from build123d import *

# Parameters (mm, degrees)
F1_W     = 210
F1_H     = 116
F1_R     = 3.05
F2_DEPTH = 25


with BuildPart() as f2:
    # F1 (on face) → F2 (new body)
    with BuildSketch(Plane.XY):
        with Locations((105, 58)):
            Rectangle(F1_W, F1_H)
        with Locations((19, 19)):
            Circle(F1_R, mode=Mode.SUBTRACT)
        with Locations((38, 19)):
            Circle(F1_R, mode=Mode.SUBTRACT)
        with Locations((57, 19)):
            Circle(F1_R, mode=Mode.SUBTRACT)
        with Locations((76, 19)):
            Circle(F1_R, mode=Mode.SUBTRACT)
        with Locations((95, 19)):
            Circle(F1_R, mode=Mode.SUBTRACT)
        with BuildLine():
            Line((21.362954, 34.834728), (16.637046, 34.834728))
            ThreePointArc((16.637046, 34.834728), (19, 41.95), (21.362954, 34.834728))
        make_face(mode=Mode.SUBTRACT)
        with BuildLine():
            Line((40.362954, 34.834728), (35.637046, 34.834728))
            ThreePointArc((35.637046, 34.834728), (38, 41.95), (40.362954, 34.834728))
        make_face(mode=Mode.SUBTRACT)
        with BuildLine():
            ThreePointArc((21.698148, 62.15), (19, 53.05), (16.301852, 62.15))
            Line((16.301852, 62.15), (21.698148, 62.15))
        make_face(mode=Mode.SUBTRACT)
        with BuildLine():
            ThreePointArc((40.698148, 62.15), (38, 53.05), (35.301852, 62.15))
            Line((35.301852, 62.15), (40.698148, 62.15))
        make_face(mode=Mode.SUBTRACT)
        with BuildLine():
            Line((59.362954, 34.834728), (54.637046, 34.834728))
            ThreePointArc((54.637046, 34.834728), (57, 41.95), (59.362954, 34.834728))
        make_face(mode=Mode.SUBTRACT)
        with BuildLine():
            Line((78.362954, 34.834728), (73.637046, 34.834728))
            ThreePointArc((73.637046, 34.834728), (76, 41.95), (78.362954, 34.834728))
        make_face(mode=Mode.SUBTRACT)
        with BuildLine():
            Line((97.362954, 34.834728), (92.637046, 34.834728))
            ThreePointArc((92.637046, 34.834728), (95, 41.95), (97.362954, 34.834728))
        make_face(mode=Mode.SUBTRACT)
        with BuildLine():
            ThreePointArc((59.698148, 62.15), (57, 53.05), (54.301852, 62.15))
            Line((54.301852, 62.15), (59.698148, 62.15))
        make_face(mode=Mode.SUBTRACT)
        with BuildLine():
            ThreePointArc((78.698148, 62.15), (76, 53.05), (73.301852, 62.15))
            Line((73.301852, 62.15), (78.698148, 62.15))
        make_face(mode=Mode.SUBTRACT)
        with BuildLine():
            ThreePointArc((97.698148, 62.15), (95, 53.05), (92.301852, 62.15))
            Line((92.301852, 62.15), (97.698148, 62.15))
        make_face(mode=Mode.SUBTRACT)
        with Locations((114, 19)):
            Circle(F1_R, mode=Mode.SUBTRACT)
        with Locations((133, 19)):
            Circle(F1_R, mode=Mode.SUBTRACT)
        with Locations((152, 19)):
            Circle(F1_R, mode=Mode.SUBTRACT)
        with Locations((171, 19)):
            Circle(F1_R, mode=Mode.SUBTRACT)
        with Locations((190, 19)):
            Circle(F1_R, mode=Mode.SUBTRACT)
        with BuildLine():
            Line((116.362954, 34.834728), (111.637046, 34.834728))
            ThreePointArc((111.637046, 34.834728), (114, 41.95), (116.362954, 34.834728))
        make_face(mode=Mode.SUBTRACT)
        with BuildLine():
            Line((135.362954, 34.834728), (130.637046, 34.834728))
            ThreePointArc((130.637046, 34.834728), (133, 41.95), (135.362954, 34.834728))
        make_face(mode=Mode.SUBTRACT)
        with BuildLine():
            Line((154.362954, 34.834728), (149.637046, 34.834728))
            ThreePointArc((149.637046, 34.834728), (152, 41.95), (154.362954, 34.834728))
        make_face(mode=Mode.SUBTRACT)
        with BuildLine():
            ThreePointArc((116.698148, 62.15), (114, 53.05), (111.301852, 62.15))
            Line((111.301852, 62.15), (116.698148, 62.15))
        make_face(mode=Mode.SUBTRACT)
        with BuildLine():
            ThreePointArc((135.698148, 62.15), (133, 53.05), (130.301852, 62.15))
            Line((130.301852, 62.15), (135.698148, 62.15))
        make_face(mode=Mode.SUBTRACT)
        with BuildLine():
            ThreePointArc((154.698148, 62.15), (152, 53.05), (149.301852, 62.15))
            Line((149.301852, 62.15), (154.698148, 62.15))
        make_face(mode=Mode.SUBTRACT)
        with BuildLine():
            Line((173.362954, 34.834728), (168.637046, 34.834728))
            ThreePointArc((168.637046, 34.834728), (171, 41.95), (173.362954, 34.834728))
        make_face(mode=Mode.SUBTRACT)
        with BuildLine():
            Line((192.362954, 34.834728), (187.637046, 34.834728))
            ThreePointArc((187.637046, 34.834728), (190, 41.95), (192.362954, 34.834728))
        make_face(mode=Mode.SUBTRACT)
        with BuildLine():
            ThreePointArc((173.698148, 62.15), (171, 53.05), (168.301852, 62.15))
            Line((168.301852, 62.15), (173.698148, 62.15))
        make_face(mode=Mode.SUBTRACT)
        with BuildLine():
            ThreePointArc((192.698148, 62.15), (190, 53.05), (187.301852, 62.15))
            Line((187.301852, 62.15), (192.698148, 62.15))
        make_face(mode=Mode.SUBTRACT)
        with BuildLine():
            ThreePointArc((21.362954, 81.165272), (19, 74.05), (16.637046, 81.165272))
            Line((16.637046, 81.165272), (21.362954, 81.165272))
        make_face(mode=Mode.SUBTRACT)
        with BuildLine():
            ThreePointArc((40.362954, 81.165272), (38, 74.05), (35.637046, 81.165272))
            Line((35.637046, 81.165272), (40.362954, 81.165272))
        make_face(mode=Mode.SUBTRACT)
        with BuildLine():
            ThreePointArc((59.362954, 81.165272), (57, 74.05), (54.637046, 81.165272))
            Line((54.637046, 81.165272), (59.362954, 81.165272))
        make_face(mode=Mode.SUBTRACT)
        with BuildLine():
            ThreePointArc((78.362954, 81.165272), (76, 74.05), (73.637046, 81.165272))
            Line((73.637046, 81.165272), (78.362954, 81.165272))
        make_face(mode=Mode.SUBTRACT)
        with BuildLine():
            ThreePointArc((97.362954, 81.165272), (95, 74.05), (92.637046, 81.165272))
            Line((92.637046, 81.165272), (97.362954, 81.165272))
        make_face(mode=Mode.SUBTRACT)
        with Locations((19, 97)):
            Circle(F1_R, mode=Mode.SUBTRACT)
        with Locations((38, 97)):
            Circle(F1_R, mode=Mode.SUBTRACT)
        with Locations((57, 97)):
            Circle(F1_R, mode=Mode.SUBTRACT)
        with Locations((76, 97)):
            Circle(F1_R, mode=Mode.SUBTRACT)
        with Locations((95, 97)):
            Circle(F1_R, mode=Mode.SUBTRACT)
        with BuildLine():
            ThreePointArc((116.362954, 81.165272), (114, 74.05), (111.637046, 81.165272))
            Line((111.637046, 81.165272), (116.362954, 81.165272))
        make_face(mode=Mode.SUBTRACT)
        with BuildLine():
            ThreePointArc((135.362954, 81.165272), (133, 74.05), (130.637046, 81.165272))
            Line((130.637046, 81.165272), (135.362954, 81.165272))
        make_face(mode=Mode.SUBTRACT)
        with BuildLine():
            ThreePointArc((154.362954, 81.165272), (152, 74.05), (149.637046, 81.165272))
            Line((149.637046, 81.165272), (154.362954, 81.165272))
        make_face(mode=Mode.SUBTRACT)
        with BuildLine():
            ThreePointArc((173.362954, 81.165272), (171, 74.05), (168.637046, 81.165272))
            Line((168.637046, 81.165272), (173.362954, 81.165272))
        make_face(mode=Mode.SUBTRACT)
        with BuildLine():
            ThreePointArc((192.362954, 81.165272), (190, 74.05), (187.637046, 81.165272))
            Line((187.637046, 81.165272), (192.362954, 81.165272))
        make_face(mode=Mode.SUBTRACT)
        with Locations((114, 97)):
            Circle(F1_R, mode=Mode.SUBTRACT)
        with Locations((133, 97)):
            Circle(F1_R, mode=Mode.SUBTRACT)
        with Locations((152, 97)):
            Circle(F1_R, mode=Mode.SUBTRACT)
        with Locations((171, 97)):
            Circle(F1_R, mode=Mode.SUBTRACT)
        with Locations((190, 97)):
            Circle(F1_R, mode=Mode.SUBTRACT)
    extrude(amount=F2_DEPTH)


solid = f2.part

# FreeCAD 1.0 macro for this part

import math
import FreeCAD as App
import Part
import Sketcher
from FreeCAD import Vector

doc = App.newDocument("Part")
body = doc.addObject("PartDesign::Body", "Body")

sketch1 = body.newObject("Sketcher::SketchObject", "Sketch")
sketch1.AttachmentSupport = (doc.getObject("XY_Plane"), [""])
sketch1.MapMode = "FlatFace"
sketch1.addGeometry(Part.LineSegment(Vector(0, 116, 0), Vector(0, 0, 0)), False)
sketch1.addGeometry(Part.LineSegment(Vector(0, 0, 0), Vector(210, 0, 0)), False)
sketch1.addGeometry(Part.LineSegment(Vector(210, 0, 0), Vector(210, 116, 0)), False)
sketch1.addGeometry(Part.LineSegment(Vector(210, 116, 0), Vector(0, 116, 0)), False)
sketch1.addGeometry(Part.Circle(Vector(19, 19, 0), Vector(0, 0, 1), 3.05), False)
sketch1.addGeometry(Part.Circle(Vector(38, 19, 0), Vector(0, 0, 1), 3.05), False)
sketch1.addGeometry(Part.Circle(Vector(57, 19, 0), Vector(0, 0, 1), 3.05), False)
sketch1.addGeometry(Part.Circle(Vector(76, 19, 0), Vector(0, 0, 1), 3.05), False)
sketch1.addGeometry(Part.Circle(Vector(95, 19, 0), Vector(0, 0, 1), 3.05), False)
sketch1.addGeometry(Part.ArcOfCircle(Part.Circle(Vector(19, 38, 0), Vector(0, 0, 1), 3.95), math.radians(-53.25775), math.radians(233.25775)), False)
sketch1.addGeometry(Part.LineSegment(Vector(21.362954, 34.834728, 0), Vector(16.637046, 34.834728, 0)), False)
sketch1.addGeometry(Part.ArcOfCircle(Part.Circle(Vector(38, 38, 0), Vector(0, 0, 1), 3.95), math.radians(-53.25775), math.radians(233.25775)), False)
sketch1.addGeometry(Part.LineSegment(Vector(40.362954, 34.834728, 0), Vector(35.637046, 34.834728, 0)), False)
sketch1.addGeometry(Part.ArcOfCircle(Part.Circle(Vector(57, 38, 0), Vector(0, 0, 1), 3.95), math.radians(-53.25775), math.radians(233.25775)), False)
sketch1.addGeometry(Part.LineSegment(Vector(59.362954, 34.834728, 0), Vector(54.637046, 34.834728, 0)), False)
sketch1.addGeometry(Part.LineSegment(Vector(16.301852, 62.15, 0), Vector(21.698148, 62.15, 0)), False)
sketch1.addGeometry(Part.ArcOfCircle(Part.Circle(Vector(19, 58, 0), Vector(0, 0, 1), 4.95), math.radians(123.030157), math.radians(416.969843)), False)
sketch1.addGeometry(Part.LineSegment(Vector(35.301852, 62.15, 0), Vector(40.698148, 62.15, 0)), False)
sketch1.addGeometry(Part.ArcOfCircle(Part.Circle(Vector(38, 58, 0), Vector(0, 0, 1), 4.95), math.radians(123.030157), math.radians(416.969843)), False)
sketch1.addGeometry(Part.LineSegment(Vector(54.301852, 62.15, 0), Vector(59.698148, 62.15, 0)), False)
sketch1.addGeometry(Part.ArcOfCircle(Part.Circle(Vector(57, 58, 0), Vector(0, 0, 1), 4.95), math.radians(123.030157), math.radians(416.969843)), False)
sketch1.addGeometry(Part.ArcOfCircle(Part.Circle(Vector(76, 38, 0), Vector(0, 0, 1), 3.95), math.radians(-53.25775), math.radians(233.25775)), False)
sketch1.addGeometry(Part.LineSegment(Vector(78.362954, 34.834728, 0), Vector(73.637046, 34.834728, 0)), False)
sketch1.addGeometry(Part.ArcOfCircle(Part.Circle(Vector(95, 38, 0), Vector(0, 0, 1), 3.95), math.radians(-53.25775), math.radians(233.25775)), False)
sketch1.addGeometry(Part.LineSegment(Vector(97.362954, 34.834728, 0), Vector(92.637046, 34.834728, 0)), False)
sketch1.addGeometry(Part.LineSegment(Vector(73.301852, 62.15, 0), Vector(78.698148, 62.15, 0)), False)
sketch1.addGeometry(Part.ArcOfCircle(Part.Circle(Vector(76, 58, 0), Vector(0, 0, 1), 4.95), math.radians(123.030157), math.radians(416.969843)), False)
sketch1.addGeometry(Part.LineSegment(Vector(92.301852, 62.15, 0), Vector(97.698148, 62.15, 0)), False)
sketch1.addGeometry(Part.ArcOfCircle(Part.Circle(Vector(95, 58, 0), Vector(0, 0, 1), 4.95), math.radians(123.030157), math.radians(416.969843)), False)
sketch1.addGeometry(Part.Circle(Vector(114, 19, 0), Vector(0, 0, 1), 3.05), False)
sketch1.addGeometry(Part.Circle(Vector(133, 19, 0), Vector(0, 0, 1), 3.05), False)
sketch1.addGeometry(Part.Circle(Vector(152, 19, 0), Vector(0, 0, 1), 3.05), False)
sketch1.addGeometry(Part.Circle(Vector(171, 19, 0), Vector(0, 0, 1), 3.05), False)
sketch1.addGeometry(Part.Circle(Vector(190, 19, 0), Vector(0, 0, 1), 3.05), False)
sketch1.addGeometry(Part.ArcOfCircle(Part.Circle(Vector(114, 38, 0), Vector(0, 0, 1), 3.95), math.radians(-53.25775), math.radians(233.25775)), False)
sketch1.addGeometry(Part.LineSegment(Vector(116.362954, 34.834728, 0), Vector(111.637046, 34.834728, 0)), False)
sketch1.addGeometry(Part.ArcOfCircle(Part.Circle(Vector(133, 38, 0), Vector(0, 0, 1), 3.95), math.radians(-53.25775), math.radians(233.25775)), False)
sketch1.addGeometry(Part.LineSegment(Vector(135.362954, 34.834728, 0), Vector(130.637046, 34.834728, 0)), False)
sketch1.addGeometry(Part.LineSegment(Vector(111.301852, 62.15, 0), Vector(116.698148, 62.15, 0)), False)
sketch1.addGeometry(Part.ArcOfCircle(Part.Circle(Vector(114, 58, 0), Vector(0, 0, 1), 4.95), math.radians(123.030157), math.radians(416.969843)), False)
sketch1.addGeometry(Part.LineSegment(Vector(130.301852, 62.15, 0), Vector(135.698148, 62.15, 0)), False)
sketch1.addGeometry(Part.ArcOfCircle(Part.Circle(Vector(133, 58, 0), Vector(0, 0, 1), 4.95), math.radians(123.030157), math.radians(416.969843)), False)
sketch1.addGeometry(Part.ArcOfCircle(Part.Circle(Vector(152, 38, 0), Vector(0, 0, 1), 3.95), math.radians(-53.25775), math.radians(233.25775)), False)
sketch1.addGeometry(Part.LineSegment(Vector(154.362954, 34.834728, 0), Vector(149.637046, 34.834728, 0)), False)
sketch1.addGeometry(Part.ArcOfCircle(Part.Circle(Vector(171, 38, 0), Vector(0, 0, 1), 3.95), math.radians(-53.25775), math.radians(233.25775)), False)
sketch1.addGeometry(Part.LineSegment(Vector(173.362954, 34.834728, 0), Vector(168.637046, 34.834728, 0)), False)
sketch1.addGeometry(Part.ArcOfCircle(Part.Circle(Vector(190, 38, 0), Vector(0, 0, 1), 3.95), math.radians(-53.25775), math.radians(233.25775)), False)
sketch1.addGeometry(Part.LineSegment(Vector(192.362954, 34.834728, 0), Vector(187.637046, 34.834728, 0)), False)
sketch1.addGeometry(Part.LineSegment(Vector(149.301852, 62.15, 0), Vector(154.698148, 62.15, 0)), False)
sketch1.addGeometry(Part.ArcOfCircle(Part.Circle(Vector(152, 58, 0), Vector(0, 0, 1), 4.95), math.radians(123.030157), math.radians(416.969843)), False)
sketch1.addGeometry(Part.LineSegment(Vector(168.301852, 62.15, 0), Vector(173.698148, 62.15, 0)), False)
sketch1.addGeometry(Part.ArcOfCircle(Part.Circle(Vector(171, 58, 0), Vector(0, 0, 1), 4.95), math.radians(123.030157), math.radians(416.969843)), False)
sketch1.addGeometry(Part.LineSegment(Vector(187.301852, 62.15, 0), Vector(192.698148, 62.15, 0)), False)
sketch1.addGeometry(Part.ArcOfCircle(Part.Circle(Vector(190, 58, 0), Vector(0, 0, 1), 4.95), math.radians(123.030157), math.radians(416.969843)), False)
sketch1.addGeometry(Part.LineSegment(Vector(16.637046, 81.165272, 0), Vector(21.362954, 81.165272, 0)), False)
sketch1.addGeometry(Part.ArcOfCircle(Part.Circle(Vector(19, 78, 0), Vector(0, 0, 1), 3.95), math.radians(126.74225), math.radians(413.25775)), False)
sketch1.addGeometry(Part.LineSegment(Vector(35.637046, 81.165272, 0), Vector(40.362954, 81.165272, 0)), False)
sketch1.addGeometry(Part.ArcOfCircle(Part.Circle(Vector(38, 78, 0), Vector(0, 0, 1), 3.95), math.radians(126.74225), math.radians(413.25775)), False)
sketch1.addGeometry(Part.LineSegment(Vector(54.637046, 81.165272, 0), Vector(59.362954, 81.165272, 0)), False)
sketch1.addGeometry(Part.ArcOfCircle(Part.Circle(Vector(57, 78, 0), Vector(0, 0, 1), 3.95), math.radians(126.74225), math.radians(413.25775)), False)
sketch1.addGeometry(Part.LineSegment(Vector(73.637046, 81.165272, 0), Vector(78.362954, 81.165272, 0)), False)
sketch1.addGeometry(Part.ArcOfCircle(Part.Circle(Vector(76, 78, 0), Vector(0, 0, 1), 3.95), math.radians(126.74225), math.radians(413.25775)), False)
sketch1.addGeometry(Part.LineSegment(Vector(92.637046, 81.165272, 0), Vector(97.362954, 81.165272, 0)), False)
sketch1.addGeometry(Part.ArcOfCircle(Part.Circle(Vector(95, 78, 0), Vector(0, 0, 1), 3.95), math.radians(126.74225), math.radians(413.25775)), False)
sketch1.addGeometry(Part.Circle(Vector(19, 97, 0), Vector(0, 0, 1), 3.05), False)
sketch1.addGeometry(Part.Circle(Vector(38, 97, 0), Vector(0, 0, 1), 3.05), False)
sketch1.addGeometry(Part.Circle(Vector(57, 97, 0), Vector(0, 0, 1), 3.05), False)
sketch1.addGeometry(Part.Circle(Vector(76, 97, 0), Vector(0, 0, 1), 3.05), False)
sketch1.addGeometry(Part.Circle(Vector(95, 97, 0), Vector(0, 0, 1), 3.05), False)
sketch1.addGeometry(Part.LineSegment(Vector(111.637046, 81.165272, 0), Vector(116.362954, 81.165272, 0)), False)
sketch1.addGeometry(Part.ArcOfCircle(Part.Circle(Vector(114, 78, 0), Vector(0, 0, 1), 3.95), math.radians(126.74225), math.radians(413.25775)), False)
sketch1.addGeometry(Part.LineSegment(Vector(130.637046, 81.165272, 0), Vector(135.362954, 81.165272, 0)), False)
sketch1.addGeometry(Part.ArcOfCircle(Part.Circle(Vector(133, 78, 0), Vector(0, 0, 1), 3.95), math.radians(126.74225), math.radians(413.25775)), False)
sketch1.addGeometry(Part.LineSegment(Vector(149.637046, 81.165272, 0), Vector(154.362954, 81.165272, 0)), False)
sketch1.addGeometry(Part.ArcOfCircle(Part.Circle(Vector(152, 78, 0), Vector(0, 0, 1), 3.95), math.radians(126.74225), math.radians(413.25775)), False)
sketch1.addGeometry(Part.LineSegment(Vector(168.637046, 81.165272, 0), Vector(173.362954, 81.165272, 0)), False)
sketch1.addGeometry(Part.ArcOfCircle(Part.Circle(Vector(171, 78, 0), Vector(0, 0, 1), 3.95), math.radians(126.74225), math.radians(413.25775)), False)
sketch1.addGeometry(Part.LineSegment(Vector(187.637046, 81.165272, 0), Vector(192.362954, 81.165272, 0)), False)
sketch1.addGeometry(Part.ArcOfCircle(Part.Circle(Vector(190, 78, 0), Vector(0, 0, 1), 3.95), math.radians(126.74225), math.radians(413.25775)), False)
sketch1.addGeometry(Part.Circle(Vector(114, 97, 0), Vector(0, 0, 1), 3.05), False)
sketch1.addGeometry(Part.Circle(Vector(133, 97, 0), Vector(0, 0, 1), 3.05), False)
sketch1.addGeometry(Part.Circle(Vector(152, 97, 0), Vector(0, 0, 1), 3.05), False)
sketch1.addGeometry(Part.Circle(Vector(171, 97, 0), Vector(0, 0, 1), 3.05), False)
sketch1.addGeometry(Part.Circle(Vector(190, 97, 0), Vector(0, 0, 1), 3.05), False)
sketch1.addConstraint(Sketcher.Constraint("Coincident", 0, 2, 1, 1))
sketch1.addConstraint(Sketcher.Constraint("Coincident", 1, 2, 2, 1))
sketch1.addConstraint(Sketcher.Constraint("Coincident", 2, 2, 3, 1))
sketch1.addConstraint(Sketcher.Constraint("Coincident", 3, 2, 0, 1))
sketch1.addConstraint(Sketcher.Constraint("Coincident", 9, 1, 10, 1))
sketch1.addConstraint(Sketcher.Constraint("Coincident", 10, 2, 9, 2))
sketch1.addConstraint(Sketcher.Constraint("Coincident", 11, 1, 12, 1))
sketch1.addConstraint(Sketcher.Constraint("Coincident", 12, 2, 11, 2))
sketch1.addConstraint(Sketcher.Constraint("Coincident", 13, 1, 14, 1))
sketch1.addConstraint(Sketcher.Constraint("Coincident", 14, 2, 13, 2))
sketch1.addConstraint(Sketcher.Constraint("Coincident", 15, 1, 16, 1))
sketch1.addConstraint(Sketcher.Constraint("Coincident", 16, 2, 15, 2))
sketch1.addConstraint(Sketcher.Constraint("Coincident", 17, 1, 18, 1))
sketch1.addConstraint(Sketcher.Constraint("Coincident", 18, 2, 17, 2))
sketch1.addConstraint(Sketcher.Constraint("Coincident", 19, 1, 20, 1))
sketch1.addConstraint(Sketcher.Constraint("Coincident", 20, 2, 19, 2))
sketch1.addConstraint(Sketcher.Constraint("Coincident", 21, 1, 22, 1))
sketch1.addConstraint(Sketcher.Constraint("Coincident", 22, 2, 21, 2))
sketch1.addConstraint(Sketcher.Constraint("Coincident", 23, 1, 24, 1))
sketch1.addConstraint(Sketcher.Constraint("Coincident", 24, 2, 23, 2))
sketch1.addConstraint(Sketcher.Constraint("Coincident", 25, 1, 26, 1))
sketch1.addConstraint(Sketcher.Constraint("Coincident", 26, 2, 25, 2))
sketch1.addConstraint(Sketcher.Constraint("Coincident", 27, 1, 28, 1))
sketch1.addConstraint(Sketcher.Constraint("Coincident", 28, 2, 27, 2))
sketch1.addConstraint(Sketcher.Constraint("Coincident", 34, 1, 35, 1))
sketch1.addConstraint(Sketcher.Constraint("Coincident", 35, 2, 34, 2))
sketch1.addConstraint(Sketcher.Constraint("Coincident", 36, 1, 37, 1))
sketch1.addConstraint(Sketcher.Constraint("Coincident", 37, 2, 36, 2))
sketch1.addConstraint(Sketcher.Constraint("Coincident", 38, 1, 39, 1))
sketch1.addConstraint(Sketcher.Constraint("Coincident", 39, 2, 38, 2))
sketch1.addConstraint(Sketcher.Constraint("Coincident", 40, 1, 41, 1))
sketch1.addConstraint(Sketcher.Constraint("Coincident", 41, 2, 40, 2))
sketch1.addConstraint(Sketcher.Constraint("Coincident", 42, 1, 43, 1))
sketch1.addConstraint(Sketcher.Constraint("Coincident", 43, 2, 42, 2))
sketch1.addConstraint(Sketcher.Constraint("Coincident", 44, 1, 45, 1))
sketch1.addConstraint(Sketcher.Constraint("Coincident", 45, 2, 44, 2))
sketch1.addConstraint(Sketcher.Constraint("Coincident", 46, 1, 47, 1))
sketch1.addConstraint(Sketcher.Constraint("Coincident", 47, 2, 46, 2))
sketch1.addConstraint(Sketcher.Constraint("Coincident", 48, 1, 49, 1))
sketch1.addConstraint(Sketcher.Constraint("Coincident", 49, 2, 48, 2))
sketch1.addConstraint(Sketcher.Constraint("Coincident", 50, 1, 51, 1))
sketch1.addConstraint(Sketcher.Constraint("Coincident", 51, 2, 50, 2))
sketch1.addConstraint(Sketcher.Constraint("Coincident", 52, 1, 53, 1))
sketch1.addConstraint(Sketcher.Constraint("Coincident", 53, 2, 52, 2))
sketch1.addConstraint(Sketcher.Constraint("Coincident", 54, 1, 55, 1))
sketch1.addConstraint(Sketcher.Constraint("Coincident", 55, 2, 54, 2))
sketch1.addConstraint(Sketcher.Constraint("Coincident", 56, 1, 57, 1))
sketch1.addConstraint(Sketcher.Constraint("Coincident", 57, 2, 56, 2))
sketch1.addConstraint(Sketcher.Constraint("Coincident", 58, 1, 59, 1))
sketch1.addConstraint(Sketcher.Constraint("Coincident", 59, 2, 58, 2))
sketch1.addConstraint(Sketcher.Constraint("Coincident", 60, 1, 61, 1))
sketch1.addConstraint(Sketcher.Constraint("Coincident", 61, 2, 60, 2))
sketch1.addConstraint(Sketcher.Constraint("Coincident", 62, 1, 63, 1))
sketch1.addConstraint(Sketcher.Constraint("Coincident", 63, 2, 62, 2))
sketch1.addConstraint(Sketcher.Constraint("Coincident", 69, 1, 70, 1))
sketch1.addConstraint(Sketcher.Constraint("Coincident", 70, 2, 69, 2))
sketch1.addConstraint(Sketcher.Constraint("Coincident", 71, 1, 72, 1))
sketch1.addConstraint(Sketcher.Constraint("Coincident", 72, 2, 71, 2))
sketch1.addConstraint(Sketcher.Constraint("Coincident", 73, 1, 74, 1))
sketch1.addConstraint(Sketcher.Constraint("Coincident", 74, 2, 73, 2))
sketch1.addConstraint(Sketcher.Constraint("Coincident", 75, 1, 76, 1))
sketch1.addConstraint(Sketcher.Constraint("Coincident", 76, 2, 75, 2))
sketch1.addConstraint(Sketcher.Constraint("Coincident", 77, 1, 78, 1))
sketch1.addConstraint(Sketcher.Constraint("Coincident", 78, 2, 77, 2))
sketch1.addConstraint(Sketcher.Constraint("Vertical", 0))
sketch1.addConstraint(Sketcher.Constraint("Horizontal", 1))
sketch1.addConstraint(Sketcher.Constraint("Vertical", 2))
sketch1.addConstraint(Sketcher.Constraint("Horizontal", 3))
sketch1.addConstraint(Sketcher.Constraint("Horizontal", 10))
sketch1.addConstraint(Sketcher.Constraint("Horizontal", 12))
sketch1.addConstraint(Sketcher.Constraint("Horizontal", 14))
sketch1.addConstraint(Sketcher.Constraint("Horizontal", 15))
sketch1.addConstraint(Sketcher.Constraint("Horizontal", 17))
sketch1.addConstraint(Sketcher.Constraint("Horizontal", 19))
sketch1.addConstraint(Sketcher.Constraint("Horizontal", 22))
sketch1.addConstraint(Sketcher.Constraint("Horizontal", 24))
sketch1.addConstraint(Sketcher.Constraint("Horizontal", 25))
sketch1.addConstraint(Sketcher.Constraint("Horizontal", 27))
sketch1.addConstraint(Sketcher.Constraint("Horizontal", 35))
sketch1.addConstraint(Sketcher.Constraint("Horizontal", 37))
sketch1.addConstraint(Sketcher.Constraint("Horizontal", 38))
sketch1.addConstraint(Sketcher.Constraint("Horizontal", 40))
sketch1.addConstraint(Sketcher.Constraint("Horizontal", 43))
sketch1.addConstraint(Sketcher.Constraint("Horizontal", 45))
sketch1.addConstraint(Sketcher.Constraint("Horizontal", 47))
sketch1.addConstraint(Sketcher.Constraint("Horizontal", 48))
sketch1.addConstraint(Sketcher.Constraint("Horizontal", 50))
sketch1.addConstraint(Sketcher.Constraint("Horizontal", 52))
sketch1.addConstraint(Sketcher.Constraint("Horizontal", 54))
sketch1.addConstraint(Sketcher.Constraint("Horizontal", 56))
sketch1.addConstraint(Sketcher.Constraint("Horizontal", 58))
sketch1.addConstraint(Sketcher.Constraint("Horizontal", 60))
sketch1.addConstraint(Sketcher.Constraint("Horizontal", 62))
sketch1.addConstraint(Sketcher.Constraint("Horizontal", 69))
sketch1.addConstraint(Sketcher.Constraint("Horizontal", 71))
sketch1.addConstraint(Sketcher.Constraint("Horizontal", 73))
sketch1.addConstraint(Sketcher.Constraint("Horizontal", 75))
sketch1.addConstraint(Sketcher.Constraint("Horizontal", 77))
sketch1.addConstraint(Sketcher.Constraint("Coincident", 0, 2, -1, 1))
sketch1.addConstraint(Sketcher.Constraint("Equal", 4, 5))
sketch1.addConstraint(Sketcher.Constraint("Equal", 5, 6))
sketch1.addConstraint(Sketcher.Constraint("Equal", 6, 7))
sketch1.addConstraint(Sketcher.Constraint("Equal", 7, 8))
sketch1.addConstraint(Sketcher.Constraint("Equal", 9, 11))
sketch1.addConstraint(Sketcher.Constraint("Equal", 11, 13))
sketch1.addConstraint(Sketcher.Constraint("Equal", 16, 18))
sketch1.addConstraint(Sketcher.Constraint("Equal", 18, 20))
sketch1.addConstraint(Sketcher.Constraint("Equal", 13, 21))
sketch1.addConstraint(Sketcher.Constraint("Equal", 21, 23))
sketch1.addConstraint(Sketcher.Constraint("Equal", 20, 26))
sketch1.addConstraint(Sketcher.Constraint("Equal", 26, 28))
sketch1.addConstraint(Sketcher.Constraint("Equal", 8, 29))
sketch1.addConstraint(Sketcher.Constraint("Equal", 29, 30))
sketch1.addConstraint(Sketcher.Constraint("Equal", 30, 31))
sketch1.addConstraint(Sketcher.Constraint("Equal", 31, 32))
sketch1.addConstraint(Sketcher.Constraint("Equal", 32, 33))
sketch1.addConstraint(Sketcher.Constraint("Equal", 23, 34))
sketch1.addConstraint(Sketcher.Constraint("Equal", 34, 36))
sketch1.addConstraint(Sketcher.Constraint("Equal", 28, 39))
sketch1.addConstraint(Sketcher.Constraint("Equal", 39, 41))
sketch1.addConstraint(Sketcher.Constraint("Equal", 36, 42))
sketch1.addConstraint(Sketcher.Constraint("Equal", 42, 44))
sketch1.addConstraint(Sketcher.Constraint("Equal", 44, 46))
sketch1.addConstraint(Sketcher.Constraint("Equal", 41, 49))
sketch1.addConstraint(Sketcher.Constraint("Equal", 49, 51))
sketch1.addConstraint(Sketcher.Constraint("Equal", 51, 53))
sketch1.addConstraint(Sketcher.Constraint("Equal", 46, 55))
sketch1.addConstraint(Sketcher.Constraint("Equal", 55, 57))
sketch1.addConstraint(Sketcher.Constraint("Equal", 57, 59))
sketch1.addConstraint(Sketcher.Constraint("Equal", 59, 61))
sketch1.addConstraint(Sketcher.Constraint("Equal", 61, 63))
sketch1.addConstraint(Sketcher.Constraint("Equal", 33, 64))
sketch1.addConstraint(Sketcher.Constraint("Equal", 64, 65))
sketch1.addConstraint(Sketcher.Constraint("Equal", 65, 66))
sketch1.addConstraint(Sketcher.Constraint("Equal", 66, 67))
sketch1.addConstraint(Sketcher.Constraint("Equal", 67, 68))
sketch1.addConstraint(Sketcher.Constraint("Equal", 63, 70))
sketch1.addConstraint(Sketcher.Constraint("Equal", 70, 72))
sketch1.addConstraint(Sketcher.Constraint("Equal", 72, 74))
sketch1.addConstraint(Sketcher.Constraint("Equal", 74, 76))
sketch1.addConstraint(Sketcher.Constraint("Equal", 76, 78))
sketch1.addConstraint(Sketcher.Constraint("Equal", 68, 79))
sketch1.addConstraint(Sketcher.Constraint("Equal", 79, 80))
sketch1.addConstraint(Sketcher.Constraint("Equal", 80, 81))
sketch1.addConstraint(Sketcher.Constraint("Equal", 81, 82))
sketch1.addConstraint(Sketcher.Constraint("Equal", 82, 83))
sketch1.addConstraint(Sketcher.Constraint("Horizontal", 4, 3, 5, 3))
sketch1.addConstraint(Sketcher.Constraint("Horizontal", 5, 3, 6, 3))
sketch1.addConstraint(Sketcher.Constraint("Horizontal", 6, 3, 7, 3))
sketch1.addConstraint(Sketcher.Constraint("Horizontal", 7, 3, 8, 3))
sketch1.addConstraint(Sketcher.Constraint("Horizontal", 9, 3, 11, 3))
sketch1.addConstraint(Sketcher.Constraint("Horizontal", 11, 3, 13, 3))
sketch1.addConstraint(Sketcher.Constraint("Horizontal", 16, 3, 18, 3))
sketch1.addConstraint(Sketcher.Constraint("Horizontal", 18, 3, 20, 3))
sketch1.addConstraint(Sketcher.Constraint("Horizontal", 13, 3, 21, 3))
sketch1.addConstraint(Sketcher.Constraint("Horizontal", 21, 3, 23, 3))
sketch1.addConstraint(Sketcher.Constraint("Horizontal", 20, 3, 26, 3))
sketch1.addConstraint(Sketcher.Constraint("Horizontal", 26, 3, 28, 3))
sketch1.addConstraint(Sketcher.Constraint("Horizontal", 8, 3, 29, 3))
sketch1.addConstraint(Sketcher.Constraint("Horizontal", 29, 3, 30, 3))
sketch1.addConstraint(Sketcher.Constraint("Horizontal", 30, 3, 31, 3))
sketch1.addConstraint(Sketcher.Constraint("Horizontal", 31, 3, 32, 3))
sketch1.addConstraint(Sketcher.Constraint("Horizontal", 32, 3, 33, 3))
sketch1.addConstraint(Sketcher.Constraint("Horizontal", 23, 3, 34, 3))
sketch1.addConstraint(Sketcher.Constraint("Horizontal", 34, 3, 36, 3))
sketch1.addConstraint(Sketcher.Constraint("Horizontal", 28, 3, 39, 3))
sketch1.addConstraint(Sketcher.Constraint("Horizontal", 39, 3, 41, 3))
sketch1.addConstraint(Sketcher.Constraint("Horizontal", 36, 3, 42, 3))
sketch1.addConstraint(Sketcher.Constraint("Horizontal", 42, 3, 44, 3))
sketch1.addConstraint(Sketcher.Constraint("Horizontal", 44, 3, 46, 3))
sketch1.addConstraint(Sketcher.Constraint("Horizontal", 41, 3, 49, 3))
sketch1.addConstraint(Sketcher.Constraint("Horizontal", 49, 3, 51, 3))
sketch1.addConstraint(Sketcher.Constraint("Horizontal", 51, 3, 53, 3))
sketch1.addConstraint(Sketcher.Constraint("Horizontal", 55, 3, 57, 3))
sketch1.addConstraint(Sketcher.Constraint("Horizontal", 57, 3, 59, 3))
sketch1.addConstraint(Sketcher.Constraint("Horizontal", 59, 3, 61, 3))
sketch1.addConstraint(Sketcher.Constraint("Horizontal", 61, 3, 63, 3))
sketch1.addConstraint(Sketcher.Constraint("Horizontal", 64, 3, 65, 3))
sketch1.addConstraint(Sketcher.Constraint("Horizontal", 65, 3, 66, 3))
sketch1.addConstraint(Sketcher.Constraint("Horizontal", 66, 3, 67, 3))
sketch1.addConstraint(Sketcher.Constraint("Horizontal", 67, 3, 68, 3))
sketch1.addConstraint(Sketcher.Constraint("Horizontal", 63, 3, 70, 3))
sketch1.addConstraint(Sketcher.Constraint("Horizontal", 70, 3, 72, 3))
sketch1.addConstraint(Sketcher.Constraint("Horizontal", 72, 3, 74, 3))
sketch1.addConstraint(Sketcher.Constraint("Horizontal", 74, 3, 76, 3))
sketch1.addConstraint(Sketcher.Constraint("Horizontal", 76, 3, 78, 3))
sketch1.addConstraint(Sketcher.Constraint("Horizontal", 68, 3, 79, 3))
sketch1.addConstraint(Sketcher.Constraint("Horizontal", 79, 3, 80, 3))
sketch1.addConstraint(Sketcher.Constraint("Horizontal", 80, 3, 81, 3))
sketch1.addConstraint(Sketcher.Constraint("Horizontal", 81, 3, 82, 3))
sketch1.addConstraint(Sketcher.Constraint("Horizontal", 82, 3, 83, 3))
sketch1.addConstraint(Sketcher.Constraint("Horizontal", 10, 2, 11, 1))
sketch1.addConstraint(Sketcher.Constraint("Horizontal", 12, 2, 13, 1))
sketch1.addConstraint(Sketcher.Constraint("Horizontal", 16, 2, 17, 1))
sketch1.addConstraint(Sketcher.Constraint("Horizontal", 18, 2, 19, 1))
sketch1.addConstraint(Sketcher.Constraint("Horizontal", 14, 2, 21, 1))
sketch1.addConstraint(Sketcher.Constraint("Horizontal", 22, 2, 23, 1))
sketch1.addConstraint(Sketcher.Constraint("Horizontal", 20, 2, 25, 1))
sketch1.addConstraint(Sketcher.Constraint("Horizontal", 26, 2, 27, 1))
sketch1.addConstraint(Sketcher.Constraint("Horizontal", 24, 2, 34, 1))
sketch1.addConstraint(Sketcher.Constraint("Horizontal", 35, 2, 36, 1))
sketch1.addConstraint(Sketcher.Constraint("Horizontal", 28, 2, 38, 1))
sketch1.addConstraint(Sketcher.Constraint("Horizontal", 39, 2, 40, 1))
sketch1.addConstraint(Sketcher.Constraint("Horizontal", 37, 2, 42, 1))
sketch1.addConstraint(Sketcher.Constraint("Horizontal", 43, 2, 44, 1))
sketch1.addConstraint(Sketcher.Constraint("Horizontal", 45, 2, 46, 1))
sketch1.addConstraint(Sketcher.Constraint("Horizontal", 41, 2, 48, 1))
sketch1.addConstraint(Sketcher.Constraint("Horizontal", 49, 2, 50, 1))
sketch1.addConstraint(Sketcher.Constraint("Horizontal", 51, 2, 52, 1))
sketch1.addConstraint(Sketcher.Constraint("Horizontal", 55, 2, 56, 1))
sketch1.addConstraint(Sketcher.Constraint("Horizontal", 57, 2, 58, 1))
sketch1.addConstraint(Sketcher.Constraint("Horizontal", 59, 2, 60, 1))
sketch1.addConstraint(Sketcher.Constraint("Horizontal", 61, 2, 62, 1))
sketch1.addConstraint(Sketcher.Constraint("Horizontal", 63, 2, 69, 1))
sketch1.addConstraint(Sketcher.Constraint("Horizontal", 70, 2, 71, 1))
sketch1.addConstraint(Sketcher.Constraint("Horizontal", 72, 2, 73, 1))
sketch1.addConstraint(Sketcher.Constraint("Horizontal", 74, 2, 75, 1))
sketch1.addConstraint(Sketcher.Constraint("Horizontal", 76, 2, 77, 1))
sketch1.addConstraint(Sketcher.Constraint("Vertical", 4, 3, 9, 3))
sketch1.addConstraint(Sketcher.Constraint("Vertical", 5, 3, 11, 3))
sketch1.addConstraint(Sketcher.Constraint("Vertical", 6, 3, 13, 3))
sketch1.addConstraint(Sketcher.Constraint("Vertical", 9, 3, 16, 3))
sketch1.addConstraint(Sketcher.Constraint("Vertical", 11, 3, 18, 3))
sketch1.addConstraint(Sketcher.Constraint("Vertical", 13, 3, 20, 3))
sketch1.addConstraint(Sketcher.Constraint("Vertical", 7, 3, 21, 3))
sketch1.addConstraint(Sketcher.Constraint("Vertical", 8, 3, 23, 3))
sketch1.addConstraint(Sketcher.Constraint("Vertical", 21, 3, 26, 3))
sketch1.addConstraint(Sketcher.Constraint("Vertical", 23, 3, 28, 3))
sketch1.addConstraint(Sketcher.Constraint("Vertical", 29, 3, 34, 3))
sketch1.addConstraint(Sketcher.Constraint("Vertical", 30, 3, 36, 3))
sketch1.addConstraint(Sketcher.Constraint("Vertical", 34, 3, 39, 3))
sketch1.addConstraint(Sketcher.Constraint("Vertical", 36, 3, 41, 3))
sketch1.addConstraint(Sketcher.Constraint("Vertical", 31, 3, 42, 3))
sketch1.addConstraint(Sketcher.Constraint("Vertical", 32, 3, 44, 3))
sketch1.addConstraint(Sketcher.Constraint("Vertical", 33, 3, 46, 3))
sketch1.addConstraint(Sketcher.Constraint("Vertical", 42, 3, 49, 3))
sketch1.addConstraint(Sketcher.Constraint("Vertical", 44, 3, 51, 3))
sketch1.addConstraint(Sketcher.Constraint("Vertical", 46, 3, 53, 3))
sketch1.addConstraint(Sketcher.Constraint("Vertical", 16, 3, 55, 3))
sketch1.addConstraint(Sketcher.Constraint("Vertical", 18, 3, 57, 3))
sketch1.addConstraint(Sketcher.Constraint("Vertical", 20, 3, 59, 3))
sketch1.addConstraint(Sketcher.Constraint("Vertical", 26, 3, 61, 3))
sketch1.addConstraint(Sketcher.Constraint("Vertical", 28, 3, 63, 3))
sketch1.addConstraint(Sketcher.Constraint("Vertical", 55, 3, 64, 3))
sketch1.addConstraint(Sketcher.Constraint("Vertical", 57, 3, 65, 3))
sketch1.addConstraint(Sketcher.Constraint("Vertical", 59, 3, 66, 3))
sketch1.addConstraint(Sketcher.Constraint("Vertical", 61, 3, 67, 3))
sketch1.addConstraint(Sketcher.Constraint("Vertical", 63, 3, 68, 3))
sketch1.addConstraint(Sketcher.Constraint("Vertical", 39, 3, 70, 3))
sketch1.addConstraint(Sketcher.Constraint("Vertical", 41, 3, 72, 3))
sketch1.addConstraint(Sketcher.Constraint("Vertical", 49, 3, 74, 3))
sketch1.addConstraint(Sketcher.Constraint("Vertical", 51, 3, 76, 3))
sketch1.addConstraint(Sketcher.Constraint("Vertical", 53, 3, 78, 3))
sketch1.addConstraint(Sketcher.Constraint("Vertical", 70, 3, 79, 3))
sketch1.addConstraint(Sketcher.Constraint("Vertical", 72, 3, 80, 3))
sketch1.addConstraint(Sketcher.Constraint("Vertical", 74, 3, 81, 3))
sketch1.addConstraint(Sketcher.Constraint("Vertical", 76, 3, 82, 3))
sketch1.addConstraint(Sketcher.Constraint("Vertical", 78, 3, 83, 3))
sketch1.addConstraint(Sketcher.Constraint("Vertical", 10, 2, 54, 1))
sketch1.addConstraint(Sketcher.Constraint("Diameter", 4, 6.1))
sketch1.addConstraint(Sketcher.Constraint("DistanceX", 1, 1, 1, 2, 210.0))
sketch1.addConstraint(Sketcher.Constraint("DistanceY", 0, 2, 0, 1, 116.0))
sketch1.addConstraint(Sketcher.Constraint("Radius", 9, 3.95))
sketch1.addConstraint(Sketcher.Constraint("Radius", 16, 4.95))
sketch1.addConstraint(Sketcher.Constraint("DistanceX", -1, 1, 4, 3, 19.0))
sketch1.addConstraint(Sketcher.Constraint("DistanceY", -1, 1, 4, 3, 19.0))
sketch1.addConstraint(Sketcher.Constraint("DistanceX", -1, 1, 5, 3, 38.0))
sketch1.addConstraint(Sketcher.Constraint("DistanceX", -1, 1, 6, 3, 57.0))
sketch1.addConstraint(Sketcher.Constraint("DistanceX", -1, 1, 7, 3, 76.0))
sketch1.addConstraint(Sketcher.Constraint("DistanceX", -1, 1, 8, 3, 95.0))
sketch1.addConstraint(Sketcher.Constraint("DistanceY", -1, 1, 9, 3, 38.0))
sketch1.addConstraint(Sketcher.Constraint("DistanceY", -1, 1, 16, 3, 58.0))
sketch1.addConstraint(Sketcher.Constraint("DistanceX", -1, 1, 29, 3, 114.0))
sketch1.addConstraint(Sketcher.Constraint("DistanceX", -1, 1, 30, 3, 133.0))
sketch1.addConstraint(Sketcher.Constraint("DistanceX", -1, 1, 31, 3, 152.0))
sketch1.addConstraint(Sketcher.Constraint("DistanceX", -1, 1, 32, 3, 171.0))
sketch1.addConstraint(Sketcher.Constraint("DistanceX", -1, 1, 33, 3, 190.0))
sketch1.addConstraint(Sketcher.Constraint("DistanceY", -1, 1, 55, 3, 78.0))
sketch1.addConstraint(Sketcher.Constraint("DistanceY", -1, 1, 64, 3, 97.0))
sketch1.addConstraint(Sketcher.Constraint("DistanceY", -1, 1, 15, 1, 62.15))
sketch1.addConstraint(Sketcher.Constraint("DistanceX", 12, 2, 12, 1, 4.725908))
pad1 = body.newObject("PartDesign::Pad", "Pad")
pad1.Profile = sketch1
pad1.Length = 25

doc.recompute()
